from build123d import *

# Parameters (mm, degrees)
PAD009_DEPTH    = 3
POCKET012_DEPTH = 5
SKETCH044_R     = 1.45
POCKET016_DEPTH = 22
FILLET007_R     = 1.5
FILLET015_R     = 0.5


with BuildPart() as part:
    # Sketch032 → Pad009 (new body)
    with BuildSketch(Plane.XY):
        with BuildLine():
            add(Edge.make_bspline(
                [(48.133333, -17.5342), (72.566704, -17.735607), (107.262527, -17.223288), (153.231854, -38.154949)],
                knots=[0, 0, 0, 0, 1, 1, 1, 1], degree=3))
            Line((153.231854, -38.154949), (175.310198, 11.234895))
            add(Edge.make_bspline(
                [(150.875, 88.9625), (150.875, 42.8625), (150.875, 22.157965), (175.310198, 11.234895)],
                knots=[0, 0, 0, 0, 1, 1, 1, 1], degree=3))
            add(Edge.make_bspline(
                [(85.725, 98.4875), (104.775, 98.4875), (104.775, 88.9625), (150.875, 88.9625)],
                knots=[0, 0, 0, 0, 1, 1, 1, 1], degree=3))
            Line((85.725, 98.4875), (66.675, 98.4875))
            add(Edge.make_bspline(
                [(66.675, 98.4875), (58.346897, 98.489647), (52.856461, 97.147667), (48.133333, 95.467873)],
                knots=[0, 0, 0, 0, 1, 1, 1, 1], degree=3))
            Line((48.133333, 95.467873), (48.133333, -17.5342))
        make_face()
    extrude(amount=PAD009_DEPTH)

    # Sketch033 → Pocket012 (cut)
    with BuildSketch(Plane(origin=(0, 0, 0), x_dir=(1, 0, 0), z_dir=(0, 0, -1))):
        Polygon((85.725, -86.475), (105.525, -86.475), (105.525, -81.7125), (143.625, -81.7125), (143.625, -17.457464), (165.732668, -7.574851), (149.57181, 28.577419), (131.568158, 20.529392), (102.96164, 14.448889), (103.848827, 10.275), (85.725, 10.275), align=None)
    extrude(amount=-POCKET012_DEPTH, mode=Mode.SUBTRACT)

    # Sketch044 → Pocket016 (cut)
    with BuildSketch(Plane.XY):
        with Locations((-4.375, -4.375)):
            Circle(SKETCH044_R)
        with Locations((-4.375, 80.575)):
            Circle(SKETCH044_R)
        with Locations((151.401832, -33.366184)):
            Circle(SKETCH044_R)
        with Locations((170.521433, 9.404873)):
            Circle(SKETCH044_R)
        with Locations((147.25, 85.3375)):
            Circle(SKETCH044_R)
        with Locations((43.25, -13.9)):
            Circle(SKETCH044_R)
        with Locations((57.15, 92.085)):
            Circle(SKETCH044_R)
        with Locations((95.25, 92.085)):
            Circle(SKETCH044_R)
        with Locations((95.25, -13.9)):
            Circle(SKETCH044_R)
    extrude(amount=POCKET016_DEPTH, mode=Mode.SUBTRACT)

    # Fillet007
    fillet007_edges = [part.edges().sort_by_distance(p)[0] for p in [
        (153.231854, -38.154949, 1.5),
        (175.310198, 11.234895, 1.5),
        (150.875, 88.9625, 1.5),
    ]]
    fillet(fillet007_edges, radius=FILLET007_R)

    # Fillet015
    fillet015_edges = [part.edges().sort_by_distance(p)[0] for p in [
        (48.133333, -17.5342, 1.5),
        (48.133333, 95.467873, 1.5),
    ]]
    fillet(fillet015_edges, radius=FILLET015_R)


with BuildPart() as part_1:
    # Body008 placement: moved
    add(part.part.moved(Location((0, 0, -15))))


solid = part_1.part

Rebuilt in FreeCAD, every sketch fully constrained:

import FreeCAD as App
import Part
import Sketcher
from FreeCAD import Vector
Q = App.Units.Quantity


def edges_at(feature, points):
    """Names of the edges that pass closest to the given points."""
    edges = feature.Shape.Edges
    near = lambda p: min(range(len(edges)), key=lambda i: edges[i].distToShape(Part.Vertex(*p))[0])
    return sorted({f"Edge{near(p) + 1}" for p in points})

doc = App.newDocument("Part")
params = doc.addObject("Spreadsheet::Sheet", "Params")
for row, (alias, value) in enumerate([
    ("pad1_length", "3 mm"),
    ("sketch2_width", "19.8 mm"),
    ("sketch2_width2", "38.1 mm"),
    ("sketch2_length", "39.599999 mm"),
    ("sketch2_height", "96.75 mm"),
    ("pocket1_length", "5 mm"),
    ("sketch3_diameter", "2.9 mm"),
    ("pocket2_length", "22 mm"),
    ("fillet_radius", "1.5 mm"),
    ("fillet2_radius", "0.5 mm"),
], start=1):
    params.set(f"A{row}", alias)
    params.set(f"B{row}", "=" + value)
    params.setAlias(f"B{row}", alias)

body = doc.addObject("PartDesign::Body", "Body")

# Sketch on XY plane
sketch1 = body.newObject("Sketcher::SketchObject", "Sketch")
sketch1.AttachmentSupport = (doc.getObject("XY_Plane"), [""])
sketch1.MapMode = "FlatFace"
sketch1.addGeometry(Part.BSplineCurve([Vector(48.133333, -17.5342, 0), Vector(72.566704, -17.735607, 0), Vector(107.262527, -17.223288, 0), Vector(153.231854, -38.154949, 0)], [4, 4], [0, 1], False, 3, [1, 1, 1, 1], False), False)
sketch1.addGeometry(Part.LineSegment(Vector(153.231854, -38.154949, 0), Vector(175.310198, 11.234895, 0)), False)
sketch1.addGeometry(Part.BSplineCurve([Vector(150.875, 88.9625, 0), Vector(150.875, 42.8625, 0), Vector(150.875, 22.157965, 0), Vector(175.310198, 11.234895, 0)], [4, 4], [0, 1], False, 3, [1, 1, 1, 1], False), False)
sketch1.addGeometry(Part.BSplineCurve([Vector(85.725, 98.4875, 0), Vector(104.775, 98.4875, 0), Vector(104.775, 88.9625, 0), Vector(150.875, 88.9625, 0)], [4, 4], [0, 1], False, 3, [1, 1, 1, 1], False), False)
sketch1.addGeometry(Part.LineSegment(Vector(85.725, 98.4875, 0), Vector(66.675, 98.4875, 0)), False)
sketch1.addGeometry(Part.BSplineCurve([Vector(66.675, 98.4875, 0), Vector(58.346897, 98.489647, 0), Vector(52.856461, 97.147667, 0), Vector(48.133333, 95.467873, 0)], [4, 4], [0, 1], False, 3, [1, 1, 1, 1], False), False)
sketch1.addGeometry(Part.LineSegment(Vector(48.133333, 95.467873, 0), Vector(48.133333, -17.5342, 0)), False)
sketch1.addConstraint(Sketcher.Constraint("Block", 0))
sketch1.addConstraint(Sketcher.Constraint("Block", 2))
sketch1.addConstraint(Sketcher.Constraint("Block", 3))
sketch1.addConstraint(Sketcher.Constraint("Block", 5))
sketch1.addConstraint(Sketcher.Constraint("Coincident", 0, 2, 1, 1))
sketch1.addConstraint(Sketcher.Constraint("Coincident", 1, 2, 2, 2))
sketch1.addConstraint(Sketcher.Constraint("Coincident", 3, 1, 4, 1))
sketch1.addConstraint(Sketcher.Constraint("Coincident", 4, 2, 5, 1))
sketch1.addConstraint(Sketcher.Constraint("Coincident", 5, 2, 6, 1))
sketch1.addConstraint(Sketcher.Constraint("Coincident", 6, 2, 0, 1))
pad1 = body.newObject("PartDesign::Pad", "Pad")
pad1.Profile = sketch1
pad1.setExpression("Length", "Params.pad1_length")

# Sketch on XY plane
sketch2 = body.newObject("Sketcher::SketchObject", "Sketch001")
sketch2.AttachmentSupport = (doc.getObject("XY_Plane"), [""])
sketch2.MapMode = "FlatFace"
sketch2.addGeometry(Part.LineSegment(Vector(85.7, 86.5, 0), Vector(105.5, 86.5, 0)), False)
sketch2.addGeometry(Part.LineSegment(Vector(105.5, 86.5, 0), Vector(105.5, 81.7, 0)), False)
sketch2.addGeometry(Part.LineSegment(Vector(105.5, 81.7, 0), Vector(143.6, 81.7, 0)), False)
sketch2.addGeometry(Part.LineSegment(Vector(143.6, 81.7, 0), Vector(143.6, 17.5, 0)), False)
sketch2.addGeometry(Part.LineSegment(Vector(143.6, 17.5, 0), Vector(165.7, 7.6, 0)), False)
sketch2.addGeometry(Part.LineSegment(Vector(165.7, 7.6, 0), Vector(149.6, -28.6, 0)), False)
sketch2.addGeometry(Part.LineSegment(Vector(149.6, -28.6, 0), Vector(131.6, -20.5, 0)), False)
sketch2.addGeometry(Part.LineSegment(Vector(131.6, -20.5, 0), Vector(103, -14.4, 0)), False)
sketch2.addGeometry(Part.LineSegment(Vector(103, -14.4, 0), Vector(103.8, -10.3, 0)), False)
sketch2.addGeometry(Part.LineSegment(Vector(103.8, -10.3, 0), Vector(85.7, -10.3, 0)), False)
sketch2.addGeometry(Part.LineSegment(Vector(85.7, -10.3, 0), Vector(85.7, 86.5, 0)), False)
sketch2.addConstraint(Sketcher.Constraint("Coincident", 0, 2, 1, 1))
sketch2.addConstraint(Sketcher.Constraint("Coincident", 1, 2, 2, 1))
sketch2.addConstraint(Sketcher.Constraint("Coincident", 2, 2, 3, 1))
sketch2.addConstraint(Sketcher.Constraint("Coincident", 3, 2, 4, 1))
sketch2.addConstraint(Sketcher.Constraint("Coincident", 4, 2, 5, 1))
sketch2.addConstraint(Sketcher.Constraint("Coincident", 5, 2, 6, 1))
sketch2.addConstraint(Sketcher.Constraint("Coincident", 6, 2, 7, 1))
sketch2.addConstraint(Sketcher.Constraint("Coincident", 7, 2, 8, 1))
sketch2.addConstraint(Sketcher.Constraint("Coincident", 8, 2, 9, 1))
sketch2.addConstraint(Sketcher.Constraint("Coincident", 9, 2, 10, 1))
sketch2.addConstraint(Sketcher.Constraint("Coincident", 10, 2, 0, 1))
sketch2.addConstraint(Sketcher.Constraint("Horizontal", 0))
sketch2.addConstraint(Sketcher.Constraint("Vertical", 1))
sketch2.addConstraint(Sketcher.Constraint("Horizontal", 2))
sketch2.addConstraint(Sketcher.Constraint("Vertical", 3))
sketch2.addConstraint(Sketcher.Constraint("Horizontal", 9))
sketch2.addConstraint(Sketcher.Constraint("Vertical", 10))
sketch2.addConstraint(Sketcher.Constraint("Perpendicular", 4, 5))
sketch2.addConstraint(Sketcher.Constraint("Perpendicular", 5, 6))
sketch2.addConstraint(Sketcher.Constraint("Perpendicular", 7, 8))
sketch2.addConstraint(Sketcher.Constraint("Angle", 7, Q("168 deg")))
sketch2.addConstraint(Sketcher.Constraint("DistanceX", 0, 1, 0, 2, Q("19.8 mm")))
sketch2.addConstraint(Sketcher.Constraint("DistanceX", 2, 1, 2, 2, Q("38.1 mm")))
sketch2.addConstraint(Sketcher.Constraint("Distance", 5, Q("39.599999 mm")))
sketch2.addConstraint(Sketcher.Constraint("DistanceY", 10, 1, 10, 2, Q("96.75 mm")))
sketch2.addConstraint(Sketcher.Constraint("DistanceY", 1, 2, 1, 1, Q("4.7625 mm")))
sketch2.addConstraint(Sketcher.Constraint("DistanceX", -1, 1, 0, 2, Q("105.525 mm")))
sketch2.addConstraint(Sketcher.Constraint("DistanceY", -1, 1, 0, 2, Q("86.475 mm")))
sketch2.addConstraint(Sketcher.Constraint("DistanceX", 9, 2, 9, 1, Q("18.123827 mm")))
sketch2.addConstraint(Sketcher.Constraint("DistanceY", 3, 2, 3, 1, Q("64.255036 mm")))
sketch2.addConstraint(Sketcher.Constraint("DistanceY", -1, 1, 4, 2, Q("7.574851 mm")))
sketch2.addConstraint(Sketcher.Constraint("DistanceX", -1, 1, 5, 2, Q("149.57181 mm")))
sketch2.addConstraint(Sketcher.Constraint("DistanceX", -1, 1, 6, 2, Q("131.568158 mm")))
sketch2.setExpression("Constraints[21]", "Params.sketch2_width")
sketch2.setExpression("Constraints[22]", "Params.sketch2_width2")
sketch2.setExpression("Constraints[23]", "Params.sketch2_length")
sketch2.setExpression("Constraints[24]", "Params.sketch2_height")
pocket1 = body.newObject("PartDesign::Pocket", "Pocket")
pocket1.Profile = sketch2
pocket1.setExpression("Length", "Params.pocket1_length")
pocket1.Reversed = True

# Sketch on XY plane
sketch3 = body.newObject("Sketcher::SketchObject", "Sketch002")
sketch3.AttachmentSupport = (doc.getObject("XY_Plane"), [""])
sketch3.MapMode = "FlatFace"
sketch3.addGeometry(Part.Circle(Vector(-4.4, -4.4, 0), Vector(0, 0, 1), 1.4), False)
sketch3.addGeometry(Part.Circle(Vector(-4.4, 80.6, 0), Vector(0, 0, 1), 1.4), False)
sketch3.addGeometry(Part.Circle(Vector(151.4, -33.4, 0), Vector(0, 0, 1), 1.4), False)
sketch3.addGeometry(Part.Circle(Vector(170.5, 9.4, 0), Vector(0, 0, 1), 1.4), False)
sketch3.addGeometry(Part.Circle(Vector(147.2, 85.3, 0), Vector(0, 0, 1), 1.4), False)
sketch3.addGeometry(Part.Circle(Vector(43.2, -13.9, 0), Vector(0, 0, 1), 1.4), False)
sketch3.addGeometry(Part.Circle(Vector(57.1, 92.1, 0), Vector(0, 0, 1), 1.4), False)
sketch3.addGeometry(Part.Circle(Vector(95.2, 92.1, 0), Vector(0, 0, 1), 1.4), False)
sketch3.addGeometry(Part.Circle(Vector(95.2, -13.9, 0), Vector(0, 0, 1), 1.4), False)
sketch3.addConstraint(Sketcher.Constraint("Equal", 0, 1))
sketch3.addConstraint(Sketcher.Constraint("Equal", 1, 2))
sketch3.addConstraint(Sketcher.Constraint("Equal", 2, 3))
sketch3.addConstraint(Sketcher.Constraint("Equal", 3, 4))
sketch3.addConstraint(Sketcher.Constraint("Equal", 4, 5))
sketch3.addConstraint(Sketcher.Constraint("Equal", 5, 6))
sketch3.addConstraint(Sketcher.Constraint("Equal", 6, 7))
sketch3.addConstraint(Sketcher.Constraint("Equal", 7, 8))
sketch3.addConstraint(Sketcher.Constraint("Horizontal", 6, 3, 7, 3))
sketch3.addConstraint(Sketcher.Constraint("Horizontal", 5, 3, 8, 3))
sketch3.addConstraint(Sketcher.Constraint("Vertical", 0, 3, 1, 3))
sketch3.addConstraint(Sketcher.Constraint("Vertical", 7, 3, 8, 3))
sketch3.addConstraint(Sketcher.Constraint("Diameter", 0, Q("2.9 mm")))
sketch3.addConstraint(Sketcher.Constraint("DistanceX", 5, 3, 4, 3, Q("104 mm")))
sketch3.addConstraint(Sketcher.Constraint("DistanceX", 7, 3, 4, 3, Q("52 mm")))
sketch3.addConstraint(Sketcher.Constraint("DistanceY", 5, 3, -1, 1, Q("13.9 mm")))
sketch3.addConstraint(Sketcher.Constraint("DistanceX", 6, 3, 4, 3, Q("90.1 mm")))
sketch3.addConstraint(Sketcher.Constraint("DistanceX", -1, 1, 4, 3, Q("147.25 mm")))
sketch3.addConstraint(Sketcher.Constraint("DistanceY", 0, 3, 1, 3, Q("84.95 mm")))
sketch3.addConstraint(Sketcher.Constraint("DistanceY", 1, 3, 6, 3, Q("11.51 mm")))
sketch3.addConstraint(Sketcher.Constraint("DistanceX", 0, 3, -1, 1, Q("4.375 mm")))
sketch3.addConstraint(Sketcher.Constraint("DistanceY", 0, 3, -1, 1, Q("4.375 mm")))
sketch3.addConstraint(Sketcher.Constraint("DistanceY", -1, 1, 4, 3, Q("85.3375 mm")))
sketch3.addConstraint(Sketcher.Constraint("DistanceX", 2, 3, 3, 3, Q("19.119601 mm")))
sketch3.addConstraint(Sketcher.Constraint("DistanceX", -1, 1, 2, 3, Q("151.401832 mm")))
sketch3.addConstraint(Sketcher.Constraint("DistanceY", 2, 3, -1, 1, Q("33.366184 mm")))
sketch3.addConstraint(Sketcher.Constraint("DistanceY", -1, 1, 3, 3, Q("9.404873 mm")))
sketch3.setExpression("Constraints[12]", "Params.sketch3_diameter")
pocket2 = body.newObject("PartDesign::Pocket", "Pocket001")
pocket2.Profile = sketch3
pocket2.setExpression("Length", "Params.pocket2_length")
pocket2.Reversed = True
doc.recompute()

fillet = body.newObject("PartDesign::Fillet", "Fillet")
fillet.Base = (pocket2, edges_at(pocket2, [(153.232, -38.155, 1.5), (175.31, 11.235, 1.5), (150.875, 88.963, 1.5)]))
fillet.setExpression("Radius", "Params.fillet_radius")
doc.recompute()

fillet2 = body.newObject("PartDesign::Fillet", "Fillet001")
fillet2.Base = (fillet, edges_at(fillet, [(48.133, -17.534, 1.5), (48.133, 95.468, 1.5)]))
fillet2.setExpression("Radius", "Params.fillet2_radius")
body2 = doc.addObject("PartDesign::Body", "Body001")
doc.recompute()

body.Placement = App.Placement(Vector(0, 0, -15), App.Rotation(Vector(0, 0, 1), 0))
boolean = body2.newObject("PartDesign::Boolean", "Boolean")
boolean.Type = "Fuse"
boolean.addObjects([body])

doc.recompute()
